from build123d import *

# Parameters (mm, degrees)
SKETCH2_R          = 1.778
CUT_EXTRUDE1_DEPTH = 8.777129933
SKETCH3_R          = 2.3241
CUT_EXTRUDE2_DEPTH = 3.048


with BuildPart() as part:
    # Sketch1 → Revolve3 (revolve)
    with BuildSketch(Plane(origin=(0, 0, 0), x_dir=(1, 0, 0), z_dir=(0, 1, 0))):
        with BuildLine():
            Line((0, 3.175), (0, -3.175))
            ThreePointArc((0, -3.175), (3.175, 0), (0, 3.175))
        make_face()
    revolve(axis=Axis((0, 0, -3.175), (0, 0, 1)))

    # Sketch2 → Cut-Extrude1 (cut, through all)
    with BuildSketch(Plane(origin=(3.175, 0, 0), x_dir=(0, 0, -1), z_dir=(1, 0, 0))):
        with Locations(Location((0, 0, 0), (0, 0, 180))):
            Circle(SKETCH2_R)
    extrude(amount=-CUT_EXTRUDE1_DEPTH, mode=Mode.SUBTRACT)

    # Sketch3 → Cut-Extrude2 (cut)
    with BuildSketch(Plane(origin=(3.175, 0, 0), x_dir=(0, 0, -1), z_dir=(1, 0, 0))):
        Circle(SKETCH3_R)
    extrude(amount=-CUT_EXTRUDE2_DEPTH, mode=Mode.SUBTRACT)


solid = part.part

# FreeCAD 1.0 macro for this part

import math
import FreeCAD as App
import Part
import Sketcher
Q = App.Units.Quantity

doc = App.newDocument("Part")
body = doc.addObject("PartDesign::Body", "Body")

sketch1 = body.newObject("Sketcher::SketchObject", "Sketch")
sketch1.AttachmentSupport = (doc.getObject("XZ_Plane"), [""])
sketch1.MapMode = "FlatFace"
sketch1.addGeometry([
    Part.LineSegment(App.Vector(0, -3.2, 0), App.Vector(0, 3.2, 0)),
    Part.ArcOfCircle(Part.Circle(App.Vector(0, 0, 0), App.Vector(0, 0, 1), 3.2), math.radians(-90), math.radians(90)),
], False)
sketch1.addConstraint([
    Sketcher.Constraint("Coincident", 0, 1, 1, 1),
    Sketcher.Constraint("Coincident", 1, 2, 0, 2),
    Sketcher.Constraint("Vertical", 0),
    Sketcher.Constraint("Coincident", 1, 3, -1, 1),
    Sketcher.Constraint("PointOnObject", 0, 1, -2),
    Sketcher.Constraint("Radius", 1, Q("0.125 in")),
])
revolution = body.newObject("PartDesign::Revolution", "Revolution")
revolution.Profile = sketch1
revolution.ReferenceAxis = (sketch1, ["V_Axis"])
revolution.Angle = 360

sketch2 = body.newObject("Sketcher::SketchObject", "Sketch001")
sketch2.AttachmentSupport = (doc.getObject("YZ_Plane"), [""])
sketch2.MapMode = "FlatFace"
sketch2.AttachmentOffset = App.Placement(App.Vector(0, 0, 0.125 * 25.4), App.Rotation())
sketch2.addGeometry(Part.Circle(App.Vector(0, 0, 0), App.Vector(0, 0, 1), 1.8), False)
sketch2.addConstraint([
    Sketcher.Constraint("Coincident", 0, 3, -1, 1),
    Sketcher.Constraint("Diameter", 0, Q("0.14 in")),
])
pocket1 = body.newObject("PartDesign::Pocket", "Pocket")
pocket1.Profile = sketch2
pocket1.Type = "ThroughAll"

sketch3 = body.newObject("Sketcher::SketchObject", "Sketch002")
sketch3.AttachmentSupport = (doc.getObject("YZ_Plane"), [""])
sketch3.MapMode = "FlatFace"
sketch3.AttachmentOffset = App.Placement(App.Vector(0, 0, 0.125 * 25.4), App.Rotation())
sketch3.addGeometry(Part.Circle(App.Vector(0, 0, 0), App.Vector(0, 0, 1), 2.3), False)
sketch3.addConstraint([
    Sketcher.Constraint("Coincident", 0, 3, -1, 1),
    Sketcher.Constraint("Diameter", 0, Q("0.183 in")),
])
pocket2 = body.newObject("PartDesign::Pocket", "Pocket001")
pocket2.Profile = sketch3
pocket2.Length = Q("0.12 in")

doc.recompute()
